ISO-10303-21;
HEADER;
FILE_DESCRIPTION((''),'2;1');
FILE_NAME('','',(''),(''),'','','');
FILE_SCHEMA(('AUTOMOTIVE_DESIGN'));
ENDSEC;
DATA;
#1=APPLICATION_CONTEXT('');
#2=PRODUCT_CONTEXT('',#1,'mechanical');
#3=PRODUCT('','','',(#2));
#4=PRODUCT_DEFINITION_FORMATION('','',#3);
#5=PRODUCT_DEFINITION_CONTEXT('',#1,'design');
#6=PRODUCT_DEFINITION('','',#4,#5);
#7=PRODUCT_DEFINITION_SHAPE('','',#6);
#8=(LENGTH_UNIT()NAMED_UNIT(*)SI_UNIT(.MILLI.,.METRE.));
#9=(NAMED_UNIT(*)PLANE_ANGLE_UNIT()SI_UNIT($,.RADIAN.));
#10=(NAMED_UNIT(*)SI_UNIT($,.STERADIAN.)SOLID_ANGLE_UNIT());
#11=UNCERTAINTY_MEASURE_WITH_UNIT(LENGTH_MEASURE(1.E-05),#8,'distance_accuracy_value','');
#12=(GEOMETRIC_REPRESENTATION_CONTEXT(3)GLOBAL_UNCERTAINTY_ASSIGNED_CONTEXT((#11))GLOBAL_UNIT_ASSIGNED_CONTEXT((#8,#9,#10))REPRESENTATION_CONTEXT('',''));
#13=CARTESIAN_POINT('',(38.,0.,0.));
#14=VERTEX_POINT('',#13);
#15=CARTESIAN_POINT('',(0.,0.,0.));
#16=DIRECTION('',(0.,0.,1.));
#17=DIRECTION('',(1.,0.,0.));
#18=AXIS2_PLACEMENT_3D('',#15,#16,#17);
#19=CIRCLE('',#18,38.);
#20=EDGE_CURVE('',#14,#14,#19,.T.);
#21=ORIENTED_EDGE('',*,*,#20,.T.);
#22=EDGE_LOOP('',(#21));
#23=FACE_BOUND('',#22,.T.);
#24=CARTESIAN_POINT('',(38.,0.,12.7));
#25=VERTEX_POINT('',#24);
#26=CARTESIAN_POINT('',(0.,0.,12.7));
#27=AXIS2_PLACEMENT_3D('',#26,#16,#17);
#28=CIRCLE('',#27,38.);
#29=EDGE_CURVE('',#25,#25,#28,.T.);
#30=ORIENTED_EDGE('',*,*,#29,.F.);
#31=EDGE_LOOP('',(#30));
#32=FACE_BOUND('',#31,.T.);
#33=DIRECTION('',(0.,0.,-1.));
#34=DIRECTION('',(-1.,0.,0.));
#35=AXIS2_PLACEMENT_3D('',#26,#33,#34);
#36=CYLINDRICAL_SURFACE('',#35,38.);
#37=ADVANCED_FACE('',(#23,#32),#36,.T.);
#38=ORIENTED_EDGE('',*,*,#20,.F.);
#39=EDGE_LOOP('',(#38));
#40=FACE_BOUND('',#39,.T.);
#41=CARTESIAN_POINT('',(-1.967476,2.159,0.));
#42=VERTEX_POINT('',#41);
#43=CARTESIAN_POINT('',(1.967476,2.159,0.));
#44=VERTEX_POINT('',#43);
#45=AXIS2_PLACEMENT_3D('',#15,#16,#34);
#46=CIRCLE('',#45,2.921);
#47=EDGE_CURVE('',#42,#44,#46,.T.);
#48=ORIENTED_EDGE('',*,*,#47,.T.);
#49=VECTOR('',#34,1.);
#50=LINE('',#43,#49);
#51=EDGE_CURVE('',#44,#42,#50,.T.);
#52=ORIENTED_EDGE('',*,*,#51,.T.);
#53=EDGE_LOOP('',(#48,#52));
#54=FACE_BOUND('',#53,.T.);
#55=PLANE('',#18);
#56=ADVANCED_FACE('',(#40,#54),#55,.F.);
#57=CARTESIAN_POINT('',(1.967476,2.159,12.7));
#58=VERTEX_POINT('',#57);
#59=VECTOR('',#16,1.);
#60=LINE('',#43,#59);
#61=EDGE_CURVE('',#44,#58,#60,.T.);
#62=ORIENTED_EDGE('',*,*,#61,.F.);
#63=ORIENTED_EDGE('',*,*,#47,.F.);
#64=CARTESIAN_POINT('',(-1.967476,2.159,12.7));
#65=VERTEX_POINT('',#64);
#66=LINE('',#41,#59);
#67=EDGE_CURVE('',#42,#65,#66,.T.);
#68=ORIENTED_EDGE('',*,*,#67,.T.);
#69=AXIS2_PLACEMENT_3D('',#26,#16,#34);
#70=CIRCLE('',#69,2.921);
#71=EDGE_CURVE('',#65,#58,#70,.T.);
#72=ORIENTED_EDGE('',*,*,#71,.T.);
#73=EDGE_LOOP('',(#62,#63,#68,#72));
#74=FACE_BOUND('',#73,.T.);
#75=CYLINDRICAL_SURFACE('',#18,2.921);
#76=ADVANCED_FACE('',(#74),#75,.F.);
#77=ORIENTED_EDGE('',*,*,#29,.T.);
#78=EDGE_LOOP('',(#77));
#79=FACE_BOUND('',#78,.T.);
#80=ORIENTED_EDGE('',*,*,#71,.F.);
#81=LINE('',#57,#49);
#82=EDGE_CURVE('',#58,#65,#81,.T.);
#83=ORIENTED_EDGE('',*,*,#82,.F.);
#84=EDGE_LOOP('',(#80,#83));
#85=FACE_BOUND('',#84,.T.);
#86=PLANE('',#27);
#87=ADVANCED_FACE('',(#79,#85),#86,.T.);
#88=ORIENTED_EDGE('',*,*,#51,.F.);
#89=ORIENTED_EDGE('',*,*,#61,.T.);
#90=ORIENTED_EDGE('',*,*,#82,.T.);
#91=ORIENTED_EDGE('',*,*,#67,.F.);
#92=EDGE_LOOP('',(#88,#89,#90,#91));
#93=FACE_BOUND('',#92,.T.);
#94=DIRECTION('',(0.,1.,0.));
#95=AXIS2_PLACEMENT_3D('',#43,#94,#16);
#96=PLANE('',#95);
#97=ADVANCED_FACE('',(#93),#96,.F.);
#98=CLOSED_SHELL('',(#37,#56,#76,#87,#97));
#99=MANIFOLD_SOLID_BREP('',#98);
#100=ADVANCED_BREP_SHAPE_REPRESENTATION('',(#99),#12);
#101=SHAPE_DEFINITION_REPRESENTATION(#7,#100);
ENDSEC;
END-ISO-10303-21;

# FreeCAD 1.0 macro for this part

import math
import FreeCAD as App
import Part
import Sketcher
Q = App.Units.Quantity

doc = App.newDocument("Part")
params = doc.addObject("Spreadsheet::Sheet", "Params")
for row, (alias, value) in enumerate([
    ("pad1_length", "0.5 in"),
    ("sketch2_radius", "0.115 in"),
], start=1):
    params.set(f"A{row}", alias)
    params.set(f"B{row}", "=" + value)
    params.setAlias(f"B{row}", alias)

body = doc.addObject("PartDesign::Body", "Body")

# Sketch on XY plane
sketch1 = body.newObject("Sketcher::SketchObject", "Sketch")
sketch1.AttachmentSupport = (doc.getObject("XY_Plane"), [""])
sketch1.MapMode = "FlatFace"
sketch1.addGeometry(Part.Circle(App.Vector(0, 0, 0), App.Vector(0, 0, 1), 38), False)
sketch1.addConstraint([
    Sketcher.Constraint("Coincident", 0, 3, -1, 1),
    Sketcher.Constraint("Diameter", 0, Q("76 mm")),
])
pad1 = body.newObject("PartDesign::Pad", "Pad")
pad1.Profile = sketch1
pad1.setExpression("Length", "Params.pad1_length")

# Sketch on XY plane
sketch2 = body.newObject("Sketcher::SketchObject", "Sketch001")
sketch2.AttachmentSupport = (doc.getObject("XY_Plane"), [""])
sketch2.MapMode = "FlatFace"
sketch2.AttachmentOffset = App.Placement(App.Vector(0, 0, 0.5 * 25.4), App.Rotation())
sketch2.addGeometry([
    Part.LineSegment(App.Vector(2, 2.2, 0), App.Vector(-2, 2.2, 0)),
    Part.ArcOfCircle(Part.Circle(App.Vector(0, 0, 0), App.Vector(0, 0, 1), 2.9), math.radians(132), math.radians(408)),
], False)
sketch2.addConstraint([
    Sketcher.Constraint("Coincident", 0, 1, 1, 2),
    Sketcher.Constraint("Coincident", 1, 1, 0, 2),
    Sketcher.Constraint("Horizontal", 0),
    Sketcher.Constraint("Coincident", 1, 3, -1, 1),
    Sketcher.Constraint("Radius", 1, Q("0.115 in")),
    Sketcher.Constraint("DistanceY", -1, 1, 0, 1, Q("0.085 in")),
])
sketch2.setExpression("Constraints[4]", "Params.sketch2_radius")
pocket1 = body.newObject("PartDesign::Pocket", "Pocket")
pocket1.Profile = sketch2
pocket1.Type = "ThroughAll"

doc.recompute()
